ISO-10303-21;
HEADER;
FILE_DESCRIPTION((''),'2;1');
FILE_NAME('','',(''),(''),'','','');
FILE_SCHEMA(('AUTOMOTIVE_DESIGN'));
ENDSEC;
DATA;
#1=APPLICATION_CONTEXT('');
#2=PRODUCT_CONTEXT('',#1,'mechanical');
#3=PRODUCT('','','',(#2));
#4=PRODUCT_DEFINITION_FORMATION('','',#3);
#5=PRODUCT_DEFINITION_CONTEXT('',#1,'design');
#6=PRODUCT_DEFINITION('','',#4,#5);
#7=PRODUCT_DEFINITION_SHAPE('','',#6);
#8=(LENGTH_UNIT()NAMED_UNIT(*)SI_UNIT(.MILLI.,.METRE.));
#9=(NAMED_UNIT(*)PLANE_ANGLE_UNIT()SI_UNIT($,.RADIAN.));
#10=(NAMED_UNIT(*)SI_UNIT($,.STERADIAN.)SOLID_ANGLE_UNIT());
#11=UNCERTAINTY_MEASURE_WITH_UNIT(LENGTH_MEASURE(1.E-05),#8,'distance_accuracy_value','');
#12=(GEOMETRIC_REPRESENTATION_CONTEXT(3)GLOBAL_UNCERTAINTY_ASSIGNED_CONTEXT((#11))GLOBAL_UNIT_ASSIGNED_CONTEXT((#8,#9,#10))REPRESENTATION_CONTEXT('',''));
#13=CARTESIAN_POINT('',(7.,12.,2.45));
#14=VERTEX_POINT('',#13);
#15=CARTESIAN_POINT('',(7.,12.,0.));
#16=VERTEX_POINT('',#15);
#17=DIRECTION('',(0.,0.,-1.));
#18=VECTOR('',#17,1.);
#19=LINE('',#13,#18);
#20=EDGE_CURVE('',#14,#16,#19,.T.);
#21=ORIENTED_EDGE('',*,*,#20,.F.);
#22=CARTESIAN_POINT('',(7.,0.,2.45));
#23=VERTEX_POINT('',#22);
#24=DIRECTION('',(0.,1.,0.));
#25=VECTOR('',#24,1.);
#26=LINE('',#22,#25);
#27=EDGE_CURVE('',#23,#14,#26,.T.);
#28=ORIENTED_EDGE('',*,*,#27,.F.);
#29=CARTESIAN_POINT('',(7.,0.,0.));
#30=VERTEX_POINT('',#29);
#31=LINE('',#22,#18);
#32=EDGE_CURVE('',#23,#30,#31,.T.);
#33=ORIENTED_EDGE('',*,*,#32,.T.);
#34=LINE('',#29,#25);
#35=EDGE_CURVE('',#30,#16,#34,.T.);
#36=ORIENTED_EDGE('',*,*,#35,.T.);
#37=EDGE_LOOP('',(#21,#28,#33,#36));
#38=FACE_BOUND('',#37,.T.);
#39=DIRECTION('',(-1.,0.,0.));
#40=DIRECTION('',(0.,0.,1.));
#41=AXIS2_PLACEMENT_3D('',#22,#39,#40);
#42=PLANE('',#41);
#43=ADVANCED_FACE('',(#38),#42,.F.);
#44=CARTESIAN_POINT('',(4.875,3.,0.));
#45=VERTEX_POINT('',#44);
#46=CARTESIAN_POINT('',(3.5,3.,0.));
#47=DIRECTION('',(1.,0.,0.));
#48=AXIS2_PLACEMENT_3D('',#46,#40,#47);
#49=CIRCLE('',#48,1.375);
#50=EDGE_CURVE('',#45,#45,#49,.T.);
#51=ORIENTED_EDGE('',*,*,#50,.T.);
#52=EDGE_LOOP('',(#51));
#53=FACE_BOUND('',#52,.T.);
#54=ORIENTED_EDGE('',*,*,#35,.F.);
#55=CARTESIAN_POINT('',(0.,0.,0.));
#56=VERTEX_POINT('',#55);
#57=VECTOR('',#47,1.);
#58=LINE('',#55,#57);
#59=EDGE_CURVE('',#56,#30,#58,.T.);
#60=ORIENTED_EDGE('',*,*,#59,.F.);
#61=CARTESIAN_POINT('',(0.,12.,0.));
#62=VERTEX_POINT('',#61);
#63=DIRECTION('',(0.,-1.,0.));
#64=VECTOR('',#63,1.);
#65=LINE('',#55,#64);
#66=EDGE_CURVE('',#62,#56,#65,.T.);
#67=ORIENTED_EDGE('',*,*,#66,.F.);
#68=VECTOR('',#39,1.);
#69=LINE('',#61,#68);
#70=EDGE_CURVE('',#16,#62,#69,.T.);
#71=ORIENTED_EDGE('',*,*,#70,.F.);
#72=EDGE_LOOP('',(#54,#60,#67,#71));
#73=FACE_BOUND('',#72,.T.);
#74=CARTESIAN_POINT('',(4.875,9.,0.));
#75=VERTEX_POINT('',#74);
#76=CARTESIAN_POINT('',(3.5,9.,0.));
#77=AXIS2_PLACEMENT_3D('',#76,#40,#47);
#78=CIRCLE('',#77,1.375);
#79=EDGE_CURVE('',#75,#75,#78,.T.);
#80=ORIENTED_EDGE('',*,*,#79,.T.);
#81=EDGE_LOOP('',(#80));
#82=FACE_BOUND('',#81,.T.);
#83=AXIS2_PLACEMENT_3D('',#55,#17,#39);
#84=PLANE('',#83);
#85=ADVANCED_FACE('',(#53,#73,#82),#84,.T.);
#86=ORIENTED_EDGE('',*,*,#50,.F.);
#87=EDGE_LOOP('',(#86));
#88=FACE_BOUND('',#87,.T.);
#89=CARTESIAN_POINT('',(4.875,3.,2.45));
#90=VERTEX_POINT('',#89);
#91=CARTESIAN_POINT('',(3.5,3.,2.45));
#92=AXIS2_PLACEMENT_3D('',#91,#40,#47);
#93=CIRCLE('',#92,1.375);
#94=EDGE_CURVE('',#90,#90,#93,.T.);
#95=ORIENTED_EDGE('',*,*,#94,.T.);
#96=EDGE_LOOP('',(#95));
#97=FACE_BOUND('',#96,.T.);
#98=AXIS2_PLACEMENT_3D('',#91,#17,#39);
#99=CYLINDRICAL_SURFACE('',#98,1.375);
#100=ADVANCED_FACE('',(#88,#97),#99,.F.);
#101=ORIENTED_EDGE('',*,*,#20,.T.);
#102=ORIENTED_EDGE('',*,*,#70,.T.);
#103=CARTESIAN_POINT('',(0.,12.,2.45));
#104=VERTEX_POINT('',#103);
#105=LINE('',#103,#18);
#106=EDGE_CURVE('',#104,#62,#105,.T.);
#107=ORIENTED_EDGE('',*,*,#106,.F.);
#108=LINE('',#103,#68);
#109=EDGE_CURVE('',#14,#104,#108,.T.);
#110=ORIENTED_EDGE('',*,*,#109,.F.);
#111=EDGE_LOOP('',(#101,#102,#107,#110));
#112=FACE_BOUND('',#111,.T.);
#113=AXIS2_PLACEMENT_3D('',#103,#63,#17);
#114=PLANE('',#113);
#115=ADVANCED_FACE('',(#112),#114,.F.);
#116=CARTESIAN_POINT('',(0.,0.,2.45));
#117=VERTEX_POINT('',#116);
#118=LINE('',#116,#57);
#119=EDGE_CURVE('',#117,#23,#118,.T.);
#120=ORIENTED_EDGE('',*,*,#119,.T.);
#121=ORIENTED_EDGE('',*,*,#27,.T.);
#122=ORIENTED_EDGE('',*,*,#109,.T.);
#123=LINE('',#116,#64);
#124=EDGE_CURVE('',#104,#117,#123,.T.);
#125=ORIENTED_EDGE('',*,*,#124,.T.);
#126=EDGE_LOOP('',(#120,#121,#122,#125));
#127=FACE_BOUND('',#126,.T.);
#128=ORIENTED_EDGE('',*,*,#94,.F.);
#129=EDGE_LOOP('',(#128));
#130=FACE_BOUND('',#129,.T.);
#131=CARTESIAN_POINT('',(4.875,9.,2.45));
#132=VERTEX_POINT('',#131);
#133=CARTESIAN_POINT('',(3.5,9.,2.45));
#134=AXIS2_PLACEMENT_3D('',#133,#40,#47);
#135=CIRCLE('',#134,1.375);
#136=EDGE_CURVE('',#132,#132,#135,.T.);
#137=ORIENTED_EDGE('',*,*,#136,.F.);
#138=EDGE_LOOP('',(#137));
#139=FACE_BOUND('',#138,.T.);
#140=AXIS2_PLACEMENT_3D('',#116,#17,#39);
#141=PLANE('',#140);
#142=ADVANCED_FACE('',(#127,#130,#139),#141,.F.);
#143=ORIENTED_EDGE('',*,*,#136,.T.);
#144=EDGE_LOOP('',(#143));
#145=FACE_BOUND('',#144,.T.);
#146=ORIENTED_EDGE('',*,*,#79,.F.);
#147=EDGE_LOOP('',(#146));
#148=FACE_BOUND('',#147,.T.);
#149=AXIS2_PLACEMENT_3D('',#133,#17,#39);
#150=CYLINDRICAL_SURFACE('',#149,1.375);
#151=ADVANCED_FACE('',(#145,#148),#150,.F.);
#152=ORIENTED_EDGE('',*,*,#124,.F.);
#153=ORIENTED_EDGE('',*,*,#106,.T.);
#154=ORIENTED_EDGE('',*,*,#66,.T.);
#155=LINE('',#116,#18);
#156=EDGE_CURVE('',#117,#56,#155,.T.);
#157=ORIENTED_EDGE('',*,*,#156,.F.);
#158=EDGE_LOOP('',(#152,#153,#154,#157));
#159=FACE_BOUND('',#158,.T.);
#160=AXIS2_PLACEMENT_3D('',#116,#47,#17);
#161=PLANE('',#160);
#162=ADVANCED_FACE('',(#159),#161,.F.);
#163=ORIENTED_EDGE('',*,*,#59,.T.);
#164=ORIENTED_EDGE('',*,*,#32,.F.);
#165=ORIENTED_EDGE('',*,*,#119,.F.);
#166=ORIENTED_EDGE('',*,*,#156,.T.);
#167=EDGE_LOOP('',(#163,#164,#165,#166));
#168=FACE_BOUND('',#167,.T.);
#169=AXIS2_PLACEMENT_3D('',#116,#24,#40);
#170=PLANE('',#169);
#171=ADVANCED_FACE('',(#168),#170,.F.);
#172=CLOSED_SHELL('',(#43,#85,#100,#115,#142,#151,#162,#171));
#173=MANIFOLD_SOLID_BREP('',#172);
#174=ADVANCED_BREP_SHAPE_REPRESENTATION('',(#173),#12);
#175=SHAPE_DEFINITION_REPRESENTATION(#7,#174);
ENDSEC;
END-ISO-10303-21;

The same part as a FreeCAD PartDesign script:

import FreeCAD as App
import Part
import Sketcher

V = App.Vector

doc = App.newDocument("Part")
body = doc.addObject("PartDesign::Body", "Body")

sketch1 = body.newObject("Sketcher::SketchObject", "Sketch")
sketch1.AttachmentSupport = (doc.getObject("XY_Plane"), [""])
sketch1.MapMode = "FlatFace"
sketch1.addGeometry([
    Part.LineSegment(V(0, 12, 0), V(0, 0, 0)),
    Part.LineSegment(V(0, 0, 0), V(7, 0, 0)),
    Part.LineSegment(V(7, 0, 0), V(7, 12, 0)),
    Part.LineSegment(V(7, 12, 0), V(0, 12, 0)),
    Part.Circle(V(3.5, 3, 0), V(0, 0, 1), 1.4),
    Part.Circle(V(3.5, 9, 0), V(0, 0, 1), 1.4),
], False)
sketch1.addConstraint([
    Sketcher.Constraint("Coincident", 0, 2, 1, 1),
    Sketcher.Constraint("Coincident", 1, 2, 2, 1),
    Sketcher.Constraint("Coincident", 2, 2, 3, 1),
    Sketcher.Constraint("Coincident", 3, 2, 0, 1),
    Sketcher.Constraint("Vertical", 0),
    Sketcher.Constraint("Horizontal", 1),
    Sketcher.Constraint("Vertical", 2),
    Sketcher.Constraint("Horizontal", 3),
    Sketcher.Constraint("Coincident", 0, 2, -1, 1),
    Sketcher.Constraint("Equal", 4, 5),
    Sketcher.Constraint("Vertical", 4, 3, 5, 3),
    Sketcher.Constraint("Diameter", 4, 2.75),
    Sketcher.Constraint("DistanceX", 1, 1, 1, 2, 7.0),
    Sketcher.Constraint("DistanceY", 0, 2, 0, 1, 12.0),
    Sketcher.Constraint("DistanceY", -1, 1, 4, 3, 3.0),
    Sketcher.Constraint("DistanceY", -1, 1, 5, 3, 9.0),
    Sketcher.Constraint("DistanceX", -1, 1, 4, 3, 3.5),
])
pad1 = body.newObject("PartDesign::Pad", "Pad")
pad1.Profile = sketch1
pad1.Length = 2.45

doc.recompute()
